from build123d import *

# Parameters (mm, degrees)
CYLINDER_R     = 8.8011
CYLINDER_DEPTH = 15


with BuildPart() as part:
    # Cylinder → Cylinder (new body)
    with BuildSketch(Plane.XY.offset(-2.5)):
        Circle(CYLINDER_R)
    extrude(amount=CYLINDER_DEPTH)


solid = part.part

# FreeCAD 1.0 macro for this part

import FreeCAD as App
import Part
import Sketcher
from FreeCAD import Vector

doc = App.newDocument("Part")
body = doc.addObject("PartDesign::Body", "Body")

# Sketch on XY plane
sketch1 = body.newObject("Sketcher::SketchObject", "Sketch")
sketch1.AttachmentSupport = (doc.getObject("XY_Plane"), [""])
sketch1.MapMode = "FlatFace"
sketch1.AttachmentOffset = App.Placement(Vector(0, 0, -2.5), App.Rotation())
sketch1.addGeometry(Part.Circle(Vector(0, 0, 0), Vector(0, 0, 1), 9), False)
sketch1.addConstraint(Sketcher.Constraint("Coincident", 0, 3, -1, 1))
sketch1.addConstraint(Sketcher.Constraint("Diameter", 0, 17.6022))
pad1 = body.newObject("PartDesign::Pad", "Pad")
pad1.Profile = sketch1
pad1.Length = 15

doc.recompute()
